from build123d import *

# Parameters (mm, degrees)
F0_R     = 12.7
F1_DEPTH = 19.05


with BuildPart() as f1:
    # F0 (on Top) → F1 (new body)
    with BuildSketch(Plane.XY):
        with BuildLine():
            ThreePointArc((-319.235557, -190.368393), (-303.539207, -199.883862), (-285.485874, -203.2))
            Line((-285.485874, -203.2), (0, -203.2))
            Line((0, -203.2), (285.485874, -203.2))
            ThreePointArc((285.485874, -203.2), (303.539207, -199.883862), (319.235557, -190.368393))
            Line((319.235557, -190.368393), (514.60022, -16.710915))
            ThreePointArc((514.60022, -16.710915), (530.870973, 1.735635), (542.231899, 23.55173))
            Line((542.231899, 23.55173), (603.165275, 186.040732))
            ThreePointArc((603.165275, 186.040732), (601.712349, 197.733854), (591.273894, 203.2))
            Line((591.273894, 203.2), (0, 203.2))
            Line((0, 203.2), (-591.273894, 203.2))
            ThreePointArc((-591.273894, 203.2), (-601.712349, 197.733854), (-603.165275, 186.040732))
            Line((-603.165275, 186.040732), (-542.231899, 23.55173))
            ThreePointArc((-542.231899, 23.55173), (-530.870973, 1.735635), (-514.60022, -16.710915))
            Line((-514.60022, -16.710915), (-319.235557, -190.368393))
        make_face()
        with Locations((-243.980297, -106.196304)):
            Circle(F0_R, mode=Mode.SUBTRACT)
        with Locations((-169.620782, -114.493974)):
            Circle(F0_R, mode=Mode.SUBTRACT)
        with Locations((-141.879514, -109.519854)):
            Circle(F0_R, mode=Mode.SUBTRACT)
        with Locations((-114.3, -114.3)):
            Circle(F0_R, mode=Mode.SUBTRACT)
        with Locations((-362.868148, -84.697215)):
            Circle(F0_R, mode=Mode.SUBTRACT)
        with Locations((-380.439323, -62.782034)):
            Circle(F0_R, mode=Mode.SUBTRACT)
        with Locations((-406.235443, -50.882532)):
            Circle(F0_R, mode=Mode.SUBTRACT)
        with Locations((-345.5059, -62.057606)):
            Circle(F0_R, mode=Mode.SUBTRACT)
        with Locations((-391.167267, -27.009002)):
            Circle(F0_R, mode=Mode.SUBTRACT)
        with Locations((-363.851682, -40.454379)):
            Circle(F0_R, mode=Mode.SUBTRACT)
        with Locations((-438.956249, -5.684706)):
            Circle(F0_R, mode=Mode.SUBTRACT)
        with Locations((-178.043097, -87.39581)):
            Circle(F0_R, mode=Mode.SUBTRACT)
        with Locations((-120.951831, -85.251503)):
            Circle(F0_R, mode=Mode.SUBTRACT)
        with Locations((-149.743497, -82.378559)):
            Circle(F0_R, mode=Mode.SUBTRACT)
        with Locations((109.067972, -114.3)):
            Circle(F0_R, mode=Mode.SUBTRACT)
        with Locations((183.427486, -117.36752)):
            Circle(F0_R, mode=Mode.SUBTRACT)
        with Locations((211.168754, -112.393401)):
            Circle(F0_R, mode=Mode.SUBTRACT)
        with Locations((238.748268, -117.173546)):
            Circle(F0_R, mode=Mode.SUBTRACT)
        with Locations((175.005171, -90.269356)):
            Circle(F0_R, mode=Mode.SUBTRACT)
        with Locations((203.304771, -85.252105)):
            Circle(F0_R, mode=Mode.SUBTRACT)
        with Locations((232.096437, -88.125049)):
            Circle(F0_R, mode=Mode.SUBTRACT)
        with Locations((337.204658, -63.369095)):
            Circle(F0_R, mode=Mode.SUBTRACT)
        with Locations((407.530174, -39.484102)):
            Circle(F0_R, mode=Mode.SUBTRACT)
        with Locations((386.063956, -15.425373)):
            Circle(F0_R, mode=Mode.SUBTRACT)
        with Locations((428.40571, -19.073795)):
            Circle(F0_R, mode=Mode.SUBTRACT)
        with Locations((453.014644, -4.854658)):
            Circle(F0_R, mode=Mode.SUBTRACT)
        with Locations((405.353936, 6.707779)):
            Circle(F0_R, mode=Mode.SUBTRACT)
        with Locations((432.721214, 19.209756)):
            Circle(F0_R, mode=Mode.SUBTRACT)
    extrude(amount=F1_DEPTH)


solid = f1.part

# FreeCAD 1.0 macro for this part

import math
import FreeCAD as App
import Part
import Sketcher
from FreeCAD import Vector
Q = App.Units.Quantity

doc = App.newDocument("Part")
params = doc.addObject("Spreadsheet::Sheet", "Params")
for row, (alias, value) in enumerate([
    ("sketch1_diameter", "1 in"),
    ("sketch1_radius", "2 in"),
    ("pad1_length", "0.75 in"),
], start=1):
    params.set(f"A{row}", alias)
    params.set(f"B{row}", "=" + value)
    params.setAlias(f"B{row}", alias)

body = doc.addObject("PartDesign::Body", "Body")

# Sketch on XY plane
sketch1 = body.newObject("Sketcher::SketchObject", "Sketch")
sketch1.AttachmentSupport = (doc.getObject("XY_Plane"), [""])
sketch1.MapMode = "FlatFace"
sketch1.addGeometry([
    Part.ArcOfCircle(Part.Circle(Vector(-285.485874, -152.4, 0), Vector(0, 0, 1), 50.8), math.radians(-131.63354), math.radians(-90.000001)),  # 0
    Part.LineSegment(Vector(-285.485874, -203.2, 0), Vector(285.485874, -203.2, 0)),  # 1
    Part.ArcOfCircle(Part.Circle(Vector(285.485874, -152.4, 0), Vector(0, 0, 1), 50.8), math.radians(-89.999999), math.radians(-48.36646)),  # 2
    Part.LineSegment(Vector(319.235557, -190.368393, 0), Vector(514.60022, -16.710915, 0)),  # 3
    Part.ArcOfCircle(Part.Circle(Vector(447.100869, 59.225863, 0), Vector(0, 0, 1), 101.599983), math.radians(-48.366464), math.radians(-20.556043)),  # 4
    Part.LineSegment(Vector(542.231899, 23.55173, 0), Vector(603.165275, 186.040732, 0)),  # 5
    Part.ArcOfCircle(Part.Circle(Vector(591.273893, 190.499999, 0), Vector(0, 0, 1), 12.700001), math.radians(-20.556038), math.radians(89.999994)),  # 6
    Part.LineSegment(Vector(591.273894, 203.2, 0), Vector(-591.273894, 203.2, 0)),  # 7
    Part.ArcOfCircle(Part.Circle(Vector(-591.273893, 190.499999, 0), Vector(0, 0, 1), 12.700001), math.radians(90.000006), math.radians(200.556038)),  # 8
    Part.LineSegment(Vector(-603.165275, 186.040732, 0), Vector(-542.231899, 23.55173, 0)),  # 9
    Part.ArcOfCircle(Part.Circle(Vector(-447.100869, 59.225863, 0), Vector(0, 0, 1), 101.599983), math.radians(-159.443957), math.radians(-131.633536)),  # 10
    Part.LineSegment(Vector(-514.60022, -16.710915, 0), Vector(-319.235557, -190.368393, 0)),  # 11
    Part.Circle(Vector(-243.980297, -106.196304, 0), Vector(0, 0, 1), 12.7),  # 12
    Part.Circle(Vector(-169.620782, -114.493974, 0), Vector(0, 0, 1), 12.7),  # 13
    Part.Circle(Vector(-114.3, -114.3, 0), Vector(0, 0, 1), 12.7),  # 14
    Part.Circle(Vector(-141.879514, -109.519854, 0), Vector(0, 0, 1), 12.7),  # 15
    Part.Circle(Vector(-362.868148, -84.697215, 0), Vector(0, 0, 1), 12.7),  # 16
    Part.Circle(Vector(-380.439323, -62.782034, 0), Vector(0, 0, 1), 12.7),  # 17
    Part.Circle(Vector(-345.5059, -62.057606, 0), Vector(0, 0, 1), 12.7),  # 18
    Part.Circle(Vector(-406.235443, -50.882532, 0), Vector(0, 0, 1), 12.7),  # 19
    Part.Circle(Vector(-178.043097, -87.39581, 0), Vector(0, 0, 1), 12.7),  # 20
    Part.Circle(Vector(-120.951831, -85.251503, 0), Vector(0, 0, 1), 12.7),  # 21
    Part.Circle(Vector(-149.743497, -82.378559, 0), Vector(0, 0, 1), 12.7),  # 22
    Part.Circle(Vector(109.067972, -114.3, 0), Vector(0, 0, 1), 12.7),  # 23
    Part.Circle(Vector(183.427486, -117.36752, 0), Vector(0, 0, 1), 12.7),  # 24
    Part.Circle(Vector(211.168754, -112.393401, 0), Vector(0, 0, 1), 12.7),  # 25
    Part.Circle(Vector(175.005171, -90.269356, 0), Vector(0, 0, 1), 12.7),  # 26
    Part.Circle(Vector(238.748268, -117.173546, 0), Vector(0, 0, 1), 12.7),  # 27
    Part.Circle(Vector(203.304771, -85.252105, 0), Vector(0, 0, 1), 12.7),  # 28
    Part.Circle(Vector(232.096437, -88.125049, 0), Vector(0, 0, 1), 12.7),  # 29
    Part.Circle(Vector(337.204658, -63.369095, 0), Vector(0, 0, 1), 12.7),  # 30
    Part.Circle(Vector(-363.851682, -40.454379, 0), Vector(0, 0, 1), 12.7),  # 31
    Part.Circle(Vector(-391.167267, -27.009002, 0), Vector(0, 0, 1), 12.7),  # 32
    Part.Circle(Vector(-438.956249, -5.684706, 0), Vector(0, 0, 1), 12.7),  # 33
    Part.Circle(Vector(407.530174, -39.484102, 0), Vector(0, 0, 1), 12.7),  # 34
    Part.Circle(Vector(428.40571, -19.073795, 0), Vector(0, 0, 1), 12.7),  # 35
    Part.Circle(Vector(386.063956, -15.425373, 0), Vector(0, 0, 1), 12.7),  # 36
    Part.Circle(Vector(453.014644, -4.854658, 0), Vector(0, 0, 1), 12.7),  # 37
    Part.Circle(Vector(405.353936, 6.707779, 0), Vector(0, 0, 1), 12.7),  # 38
    Part.Circle(Vector(432.721214, 19.209756, 0), Vector(0, 0, 1), 12.7),  # 39
], False)
sketch1.addConstraint([
    Sketcher.Constraint("Tangent", 0, 2, 1, 1),
    Sketcher.Constraint("Tangent", 1, 2, 2, 1),
    Sketcher.Constraint("Tangent", 2, 2, 3, 1),
    Sketcher.Constraint("Tangent", 3, 2, 4, 1),
    Sketcher.Constraint("Tangent", 4, 2, 5, 1),
    Sketcher.Constraint("Tangent", 5, 2, 6, 1),
    Sketcher.Constraint("Tangent", 6, 2, 7, 1),
    Sketcher.Constraint("Tangent", 7, 2, 8, 1),
    Sketcher.Constraint("Tangent", 8, 2, 9, 1),
    Sketcher.Constraint("Tangent", 9, 2, 10, 1),
    Sketcher.Constraint("Tangent", 10, 2, 11, 1),
    Sketcher.Constraint("Tangent", 11, 2, 0, 1),
    Sketcher.Constraint("Horizontal", 1),
    Sketcher.Constraint("Horizontal", 7),
    Sketcher.Constraint("Equal", 0, 2),
    Sketcher.Constraint("Equal", 6, 8),
    Sketcher.Constraint("Equal", 4, 10),
    Sketcher.Constraint("Equal", 8, 12),
    Sketcher.Constraint("Equal", 12, 13),
    Sketcher.Constraint("Equal", 13, 14),
    Sketcher.Constraint("Equal", 14, 15),
    Sketcher.Constraint("Equal", 15, 16),
    Sketcher.Constraint("Equal", 16, 17),
    Sketcher.Constraint("Equal", 17, 18),
    Sketcher.Constraint("Equal", 18, 19),
    Sketcher.Constraint("Equal", 19, 20),
    Sketcher.Constraint("Equal", 20, 21),
    Sketcher.Constraint("Equal", 21, 22),
    Sketcher.Constraint("Equal", 22, 23),
    Sketcher.Constraint("Equal", 23, 24),
    Sketcher.Constraint("Equal", 24, 25),
    Sketcher.Constraint("Equal", 25, 26),
    Sketcher.Constraint("Equal", 26, 27),
    Sketcher.Constraint("Equal", 27, 28),
    Sketcher.Constraint("Equal", 28, 29),
    Sketcher.Constraint("Equal", 29, 30),
    Sketcher.Constraint("Equal", 30, 31),
    Sketcher.Constraint("Equal", 31, 32),
    Sketcher.Constraint("Equal", 32, 33),
    Sketcher.Constraint("Equal", 33, 34),
    Sketcher.Constraint("Equal", 34, 35),
    Sketcher.Constraint("Equal", 35, 36),
    Sketcher.Constraint("Equal", 36, 37),
    Sketcher.Constraint("Equal", 37, 38),
    Sketcher.Constraint("Equal", 38, 39),
    Sketcher.Constraint("Symmetric", 4, 3, 10, 3, -2),
    Sketcher.Constraint("Horizontal", 14, 3, 23, 3),
    Sketcher.Constraint("Horizontal", 5, 2, 8, 2),
    Sketcher.Constraint("Equal", 3, 11),
    Sketcher.Constraint("Diameter", 12, Q("1 in")),
    Sketcher.Constraint("Radius", 0, Q("2 in")),
    Sketcher.Constraint("DistanceY", 0, 3, -1, 1, Q("6 in")),
    Sketcher.Constraint("DistanceY", -1, 1, 6, 2, Q("8 in")),
    Sketcher.Constraint("DistanceX", 14, 3, -1, 1, Q("4.5 in")),
    Sketcher.Constraint("DistanceY", 14, 3, -1, 1, Q("4.5 in")),
    Sketcher.Constraint("Radius", 4, Q("101.599983 mm")),
    Sketcher.Constraint("DistanceX", 36, 3, 39, 3, Q("1.8368999 in")),
    Sketcher.Constraint("DistanceX", 1, 1, 1, 2, Q("570.971748 mm")),
    Sketcher.Constraint("DistanceX", 7, 2, 7, 1, Q("1182.547788 mm")),
    Sketcher.Constraint("DistanceX", 18, 3, -1, 1, Q("345.5059 mm")),
    Sketcher.Constraint("DistanceY", 25, 3, -1, 1, Q("112.393401 mm")),
    Sketcher.Constraint("DistanceY", 32, 3, -1, 1, Q("27.009002 mm")),
    Sketcher.Constraint("DistanceX", -1, 1, 4, 2, Q("542.231899 mm")),
    Sketcher.Constraint("DistanceX", 12, 3, 20, 3, Q("65.9372 mm")),
    Sketcher.Constraint("DistanceY", 12, 3, 21, 3, Q("20.944801 mm")),
    Sketcher.Constraint("DistanceX", 20, 3, 22, 3, Q("28.2996 mm")),
    Sketcher.Constraint("DistanceX", 23, 3, 2, 3, Q("176.417902 mm")),
    Sketcher.Constraint("DistanceX", 23, 3, 26, 3, Q("65.937199 mm")),
    Sketcher.Constraint("DistanceX", 26, 3, 28, 3, Q("28.2996 mm")),
    Sketcher.Constraint("DistanceX", 2, 3, 34, 3, Q("122.0443 mm")),
    Sketcher.Constraint("DistanceY", 30, 3, 35, 3, Q("44.2953 mm")),
    Sketcher.Constraint("DistanceX", 30, 3, 36, 3, Q("48.859298 mm")),
    Sketcher.Constraint("DistanceX", 2, 2, 30, 3, Q("17.969101 mm")),
    Sketcher.Constraint("DistanceY", 2, 2, 30, 3, Q("126.999298 mm")),
    Sketcher.Constraint("DistanceY", 4, 2, 5, 2, Q("162.489002 mm")),
    Sketcher.Constraint("DistanceX", 13, 3, -1, 1, Q("169.620782 mm")),
    Sketcher.Constraint("DistanceX", 16, 3, -1, 1, Q("362.868148 mm")),
    Sketcher.Constraint("DistanceY", 19, 3, -1, 1, Q("50.882532 mm")),
    Sketcher.Constraint("DistanceY", 20, 3, -1, 1, Q("87.39581 mm")),
    Sketcher.Constraint("DistanceX", 21, 3, -1, 1, Q("120.951831 mm")),
    Sketcher.Constraint("DistanceY", 22, 3, -1, 1, Q("82.378559 mm")),
    Sketcher.Constraint("DistanceY", 24, 3, -1, 1, Q("117.36752 mm")),
    Sketcher.Constraint("DistanceX", -1, 1, 27, 3, Q("238.748268 mm")),
    Sketcher.Constraint("DistanceY", 29, 3, -1, 1, Q("88.125049 mm")),
    Sketcher.Constraint("DistanceX", 31, 3, -1, 1, Q("363.851682 mm")),
    Sketcher.Constraint("DistanceY", 31, 3, -1, 1, Q("40.454379 mm")),
    Sketcher.Constraint("DistanceX", 33, 3, -1, 1, Q("438.956249 mm")),
    Sketcher.Constraint("DistanceX", -1, 1, 35, 3, Q("428.40571 mm")),
    Sketcher.Constraint("DistanceY", -1, 1, 38, 3, Q("6.707779 mm")),
    Sketcher.Constraint("DistanceX", 12, 3, 2, 3, Q("529.466171 mm")),
    Sketcher.Constraint("DistanceY", 13, 3, 12, 3, Q("8.29767 mm")),
    Sketcher.Constraint("DistanceY", 13, 3, 15, 3, Q("4.97412 mm")),
    Sketcher.Constraint("DistanceX", 0, 3, 15, 3, Q("143.60636 mm")),
    Sketcher.Constraint("DistanceY", 12, 3, 16, 3, Q("21.499089 mm")),
    Sketcher.Constraint("DistanceY", 16, 3, 17, 3, Q("21.915181 mm")),
    Sketcher.Constraint("DistanceX", 17, 3, 0, 3, Q("94.953449 mm")),
    Sketcher.Constraint("DistanceY", 16, 3, 18, 3, Q("22.639609 mm")),
    Sketcher.Constraint("DistanceY", 18, 3, 10, 3, Q("121.283469 mm")),
    Sketcher.Constraint("DistanceX", 19, 3, 17, 3, Q("25.79612 mm")),
    Sketcher.Constraint("DistanceX", 24, 3, 25, 3, Q("27.741268 mm")),
    Sketcher.Constraint("DistanceX", 25, 3, 2, 3, Q("74.31712 mm")),
    Sketcher.Constraint("DistanceY", 27, 3, 26, 3, Q("26.90419 mm")),
    Sketcher.Constraint("DistanceY", 26, 3, 28, 3, Q("5.017251 mm")),
    Sketcher.Constraint("DistanceX", 29, 3, 27, 3, Q("6.651831 mm")),
    Sketcher.Constraint("DistanceY", 27, 3, 30, 3, Q("53.804451 mm")),
    Sketcher.Constraint("DistanceX", 32, 3, 16, 3, Q("28.299119 mm")),
    Sketcher.Constraint("DistanceY", 33, 3, 10, 3, Q("64.910569 mm")),
    Sketcher.Constraint("DistanceY", 34, 3, 36, 3, Q("24.058729 mm")),
    Sketcher.Constraint("DistanceY", 35, 3, 36, 3, Q("3.648422 mm")),
    Sketcher.Constraint("DistanceX", 34, 3, 37, 3, Q("45.48447 mm")),
    Sketcher.Constraint("DistanceY", 37, 3, 4, 3, Q("64.080521 mm")),
    Sketcher.Constraint("DistanceX", 36, 3, 38, 3, Q("19.28998 mm")),
    Sketcher.Constraint("DistanceY", 35, 3, 39, 3, Q("38.283551 mm")),
])
sketch1.setExpression("Constraints[49]", "Params.sketch1_diameter")
sketch1.setExpression("Constraints[50]", "Params.sketch1_radius")
pad1 = body.newObject("PartDesign::Pad", "Pad")
pad1.Profile = sketch1
pad1.setExpression("Length", "Params.pad1_length")

doc.recompute()
